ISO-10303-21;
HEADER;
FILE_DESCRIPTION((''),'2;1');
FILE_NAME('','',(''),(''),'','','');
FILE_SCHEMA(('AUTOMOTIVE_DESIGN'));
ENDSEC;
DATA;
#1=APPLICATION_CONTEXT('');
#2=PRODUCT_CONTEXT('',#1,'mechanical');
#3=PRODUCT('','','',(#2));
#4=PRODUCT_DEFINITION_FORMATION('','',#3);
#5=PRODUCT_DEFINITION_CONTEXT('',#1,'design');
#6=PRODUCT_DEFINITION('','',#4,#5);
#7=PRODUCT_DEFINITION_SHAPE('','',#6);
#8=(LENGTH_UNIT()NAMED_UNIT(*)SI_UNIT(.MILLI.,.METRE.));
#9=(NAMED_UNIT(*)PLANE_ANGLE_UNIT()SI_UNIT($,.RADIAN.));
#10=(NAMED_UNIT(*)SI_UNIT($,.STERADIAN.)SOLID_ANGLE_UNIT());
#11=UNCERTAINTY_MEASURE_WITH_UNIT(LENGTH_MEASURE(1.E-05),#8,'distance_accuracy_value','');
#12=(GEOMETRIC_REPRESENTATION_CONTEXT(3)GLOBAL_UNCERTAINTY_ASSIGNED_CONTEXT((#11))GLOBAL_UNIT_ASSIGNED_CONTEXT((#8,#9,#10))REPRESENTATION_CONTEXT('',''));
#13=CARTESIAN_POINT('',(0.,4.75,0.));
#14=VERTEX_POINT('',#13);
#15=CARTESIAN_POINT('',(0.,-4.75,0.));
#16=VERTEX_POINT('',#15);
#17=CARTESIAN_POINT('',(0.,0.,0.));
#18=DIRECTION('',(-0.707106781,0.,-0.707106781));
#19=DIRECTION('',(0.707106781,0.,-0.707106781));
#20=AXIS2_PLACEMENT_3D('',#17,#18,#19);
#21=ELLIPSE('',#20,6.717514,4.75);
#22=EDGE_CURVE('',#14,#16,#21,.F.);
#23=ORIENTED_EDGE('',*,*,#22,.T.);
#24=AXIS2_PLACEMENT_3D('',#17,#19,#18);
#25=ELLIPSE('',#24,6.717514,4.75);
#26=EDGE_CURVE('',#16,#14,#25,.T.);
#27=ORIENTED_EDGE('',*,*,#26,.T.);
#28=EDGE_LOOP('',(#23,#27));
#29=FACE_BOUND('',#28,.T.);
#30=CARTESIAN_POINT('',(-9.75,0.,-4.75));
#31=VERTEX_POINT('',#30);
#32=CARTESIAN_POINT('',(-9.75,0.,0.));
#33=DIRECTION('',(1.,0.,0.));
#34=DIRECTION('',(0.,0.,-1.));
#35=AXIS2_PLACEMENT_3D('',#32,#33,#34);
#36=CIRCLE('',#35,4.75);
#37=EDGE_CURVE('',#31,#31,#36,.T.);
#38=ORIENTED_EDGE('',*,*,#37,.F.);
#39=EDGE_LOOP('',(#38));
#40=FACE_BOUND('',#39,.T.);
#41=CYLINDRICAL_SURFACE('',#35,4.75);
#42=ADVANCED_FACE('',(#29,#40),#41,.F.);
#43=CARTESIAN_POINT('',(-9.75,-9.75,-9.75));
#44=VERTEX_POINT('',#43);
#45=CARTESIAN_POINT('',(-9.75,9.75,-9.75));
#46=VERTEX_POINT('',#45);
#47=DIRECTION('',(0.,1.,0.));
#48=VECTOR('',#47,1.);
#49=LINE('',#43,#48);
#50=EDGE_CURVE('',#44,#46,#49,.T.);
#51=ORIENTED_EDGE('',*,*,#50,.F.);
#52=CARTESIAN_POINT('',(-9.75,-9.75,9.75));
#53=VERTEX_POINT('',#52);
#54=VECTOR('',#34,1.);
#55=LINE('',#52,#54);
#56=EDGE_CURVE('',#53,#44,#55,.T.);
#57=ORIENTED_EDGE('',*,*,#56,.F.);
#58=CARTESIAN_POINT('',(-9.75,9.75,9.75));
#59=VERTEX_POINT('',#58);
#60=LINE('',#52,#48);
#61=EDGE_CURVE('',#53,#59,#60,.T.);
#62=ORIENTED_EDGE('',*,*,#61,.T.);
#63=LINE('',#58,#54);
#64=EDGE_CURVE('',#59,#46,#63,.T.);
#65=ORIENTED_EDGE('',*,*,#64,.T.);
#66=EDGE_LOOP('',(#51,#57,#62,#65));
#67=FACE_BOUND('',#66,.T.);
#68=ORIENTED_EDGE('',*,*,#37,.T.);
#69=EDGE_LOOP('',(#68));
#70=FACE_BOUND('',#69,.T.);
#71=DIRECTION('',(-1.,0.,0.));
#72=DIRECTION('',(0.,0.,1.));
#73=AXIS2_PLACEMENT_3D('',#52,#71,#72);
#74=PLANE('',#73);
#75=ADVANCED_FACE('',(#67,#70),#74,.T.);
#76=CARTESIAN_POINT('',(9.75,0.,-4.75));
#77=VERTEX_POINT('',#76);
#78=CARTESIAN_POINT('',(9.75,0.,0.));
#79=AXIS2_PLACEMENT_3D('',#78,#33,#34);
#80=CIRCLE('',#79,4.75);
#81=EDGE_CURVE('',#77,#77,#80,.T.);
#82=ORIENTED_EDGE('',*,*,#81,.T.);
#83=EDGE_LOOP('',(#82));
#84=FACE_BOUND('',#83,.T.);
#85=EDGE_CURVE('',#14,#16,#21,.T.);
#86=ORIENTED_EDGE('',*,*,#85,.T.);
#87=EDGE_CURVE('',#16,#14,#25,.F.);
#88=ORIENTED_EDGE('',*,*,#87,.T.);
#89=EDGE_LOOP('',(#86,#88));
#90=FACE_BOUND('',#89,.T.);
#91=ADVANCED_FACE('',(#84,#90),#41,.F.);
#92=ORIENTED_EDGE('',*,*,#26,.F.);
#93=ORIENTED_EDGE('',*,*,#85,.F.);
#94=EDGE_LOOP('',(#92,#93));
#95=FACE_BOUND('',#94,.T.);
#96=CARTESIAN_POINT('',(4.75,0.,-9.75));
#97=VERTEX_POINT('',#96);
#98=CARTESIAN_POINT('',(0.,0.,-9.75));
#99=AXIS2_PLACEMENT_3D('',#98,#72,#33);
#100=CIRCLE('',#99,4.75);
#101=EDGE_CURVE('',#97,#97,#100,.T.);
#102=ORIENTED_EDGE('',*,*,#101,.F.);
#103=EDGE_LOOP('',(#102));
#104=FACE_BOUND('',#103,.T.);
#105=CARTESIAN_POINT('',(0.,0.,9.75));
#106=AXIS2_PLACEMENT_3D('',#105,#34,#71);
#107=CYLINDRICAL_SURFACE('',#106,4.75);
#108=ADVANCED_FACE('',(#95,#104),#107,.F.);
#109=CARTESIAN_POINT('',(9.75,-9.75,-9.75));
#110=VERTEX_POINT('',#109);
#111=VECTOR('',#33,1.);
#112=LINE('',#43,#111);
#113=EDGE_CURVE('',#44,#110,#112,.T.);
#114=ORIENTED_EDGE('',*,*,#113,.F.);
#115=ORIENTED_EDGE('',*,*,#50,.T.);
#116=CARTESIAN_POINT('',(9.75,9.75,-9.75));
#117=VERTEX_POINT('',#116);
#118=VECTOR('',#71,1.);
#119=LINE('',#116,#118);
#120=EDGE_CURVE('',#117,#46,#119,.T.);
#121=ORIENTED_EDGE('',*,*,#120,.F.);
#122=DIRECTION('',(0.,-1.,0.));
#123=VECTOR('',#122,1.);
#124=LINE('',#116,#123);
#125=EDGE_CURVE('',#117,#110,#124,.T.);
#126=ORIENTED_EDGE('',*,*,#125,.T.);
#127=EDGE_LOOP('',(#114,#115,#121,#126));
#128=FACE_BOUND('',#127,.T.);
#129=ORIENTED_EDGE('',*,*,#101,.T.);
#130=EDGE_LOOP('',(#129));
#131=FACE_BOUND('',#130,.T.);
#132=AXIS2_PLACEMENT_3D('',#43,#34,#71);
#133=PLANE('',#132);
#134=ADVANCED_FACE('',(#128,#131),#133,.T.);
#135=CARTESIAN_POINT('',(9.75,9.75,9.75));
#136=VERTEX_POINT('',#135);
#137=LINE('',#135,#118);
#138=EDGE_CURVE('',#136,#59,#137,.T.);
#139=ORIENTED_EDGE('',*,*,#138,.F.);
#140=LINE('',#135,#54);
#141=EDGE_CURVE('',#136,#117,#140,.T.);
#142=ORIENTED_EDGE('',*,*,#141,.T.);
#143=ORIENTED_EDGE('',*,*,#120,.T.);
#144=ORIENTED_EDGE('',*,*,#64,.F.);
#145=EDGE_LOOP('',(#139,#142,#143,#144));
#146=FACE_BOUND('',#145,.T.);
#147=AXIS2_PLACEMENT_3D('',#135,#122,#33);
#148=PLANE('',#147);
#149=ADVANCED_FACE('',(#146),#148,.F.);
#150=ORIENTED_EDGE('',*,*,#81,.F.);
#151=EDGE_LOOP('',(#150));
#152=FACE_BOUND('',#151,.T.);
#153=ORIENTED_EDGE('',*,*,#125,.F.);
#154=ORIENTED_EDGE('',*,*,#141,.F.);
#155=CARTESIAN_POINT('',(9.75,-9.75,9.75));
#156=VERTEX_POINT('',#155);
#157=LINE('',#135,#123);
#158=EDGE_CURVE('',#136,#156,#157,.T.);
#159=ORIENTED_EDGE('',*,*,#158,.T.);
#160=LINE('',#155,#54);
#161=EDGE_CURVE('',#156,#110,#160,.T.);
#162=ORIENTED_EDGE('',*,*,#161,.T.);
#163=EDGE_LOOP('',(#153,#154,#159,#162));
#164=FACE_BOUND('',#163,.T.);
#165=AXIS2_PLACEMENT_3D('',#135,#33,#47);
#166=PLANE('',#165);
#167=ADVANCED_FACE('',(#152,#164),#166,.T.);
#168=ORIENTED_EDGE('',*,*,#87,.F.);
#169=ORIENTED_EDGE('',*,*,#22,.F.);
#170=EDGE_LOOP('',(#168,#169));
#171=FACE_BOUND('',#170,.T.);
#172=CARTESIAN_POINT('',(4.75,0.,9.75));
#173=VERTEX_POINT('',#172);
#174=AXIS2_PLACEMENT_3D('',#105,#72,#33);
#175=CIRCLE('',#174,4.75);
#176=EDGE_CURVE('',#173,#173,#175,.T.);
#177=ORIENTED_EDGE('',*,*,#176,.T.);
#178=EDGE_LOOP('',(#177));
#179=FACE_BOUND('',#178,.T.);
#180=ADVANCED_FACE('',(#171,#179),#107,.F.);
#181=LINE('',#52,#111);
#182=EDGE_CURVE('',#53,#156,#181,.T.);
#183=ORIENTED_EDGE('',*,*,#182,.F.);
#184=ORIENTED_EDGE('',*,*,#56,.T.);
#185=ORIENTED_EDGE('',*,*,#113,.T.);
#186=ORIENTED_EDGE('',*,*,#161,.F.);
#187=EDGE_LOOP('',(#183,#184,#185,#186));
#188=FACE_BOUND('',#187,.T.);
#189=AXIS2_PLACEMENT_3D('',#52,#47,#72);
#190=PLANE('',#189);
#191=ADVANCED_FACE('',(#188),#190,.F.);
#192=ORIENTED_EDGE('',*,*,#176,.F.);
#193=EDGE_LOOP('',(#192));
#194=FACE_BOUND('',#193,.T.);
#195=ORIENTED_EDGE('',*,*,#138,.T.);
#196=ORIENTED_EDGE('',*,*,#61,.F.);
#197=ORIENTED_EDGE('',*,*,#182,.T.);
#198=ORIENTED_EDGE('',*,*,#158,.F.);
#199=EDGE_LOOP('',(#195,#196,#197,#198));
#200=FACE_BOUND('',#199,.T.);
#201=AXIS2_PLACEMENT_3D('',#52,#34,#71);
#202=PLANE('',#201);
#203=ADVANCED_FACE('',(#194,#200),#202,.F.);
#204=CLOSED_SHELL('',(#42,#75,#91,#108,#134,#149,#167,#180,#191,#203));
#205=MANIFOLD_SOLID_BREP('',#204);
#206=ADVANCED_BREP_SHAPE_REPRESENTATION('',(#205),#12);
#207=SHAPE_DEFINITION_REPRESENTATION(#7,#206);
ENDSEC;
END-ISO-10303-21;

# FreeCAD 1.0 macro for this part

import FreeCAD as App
import Part
import Sketcher

V = App.Vector


def add_polygon(sketch, points):
    """Adds a closed chain of lines whose ends are joined by coincident constraints."""
    first, n = sketch.GeometryCount, len(points)
    for a, b in zip(points, points[1:] + points[:1]):
        sketch.addGeometry(Part.LineSegment(App.Vector(*a, 0), App.Vector(*b, 0)), False)
    for i in range(n):
        sketch.addConstraint(Sketcher.Constraint("Coincident", first + i, 2, first + (i + 1) % n, 1))

doc = App.newDocument("Part")
body = doc.addObject("PartDesign::Body", "Body")

sketch1 = doc.addObject("Sketcher::SketchObject", "Sketch")
body.addObject(sketch1)
sketch1.AttachmentSupport = (doc.XY_Plane, [""])
sketch1.MapMode = "FlatFace"
add_polygon(sketch1, [(-9.8, 9.8), (-9.8, -9.8), (9.8, -9.8), (9.8, 9.8)])
sketch1.addGeometry(Part.Circle(V(0, 0, 0), V(0, 0, 1), 4.8), False)
sketch1.addConstraint([
    Sketcher.Constraint("Vertical", 0),
    Sketcher.Constraint("Horizontal", 1),
    Sketcher.Constraint("Vertical", 2),
    Sketcher.Constraint("Horizontal", 3),
    Sketcher.Constraint("Coincident", 4, 3, -1, 1),
    Sketcher.Constraint("Symmetric", 0, 2, 2, 2, -1, 1),
    Sketcher.Constraint("Equal", 3, 0),
    Sketcher.Constraint("Diameter", 4, 9.5),
    Sketcher.Constraint("DistanceX", 1, 1, 1, 2, 19.5),
])
pad1 = doc.addObject("PartDesign::Pad", "Pad")
body.addObject(pad1)
pad1.Profile = sketch1
pad1.Length = 19.5
pad1.Midplane = True

sketch2 = doc.addObject("Sketcher::SketchObject", "Sketch001")
body.addObject(sketch2)
sketch2.AttachmentSupport = (doc.YZ_Plane, [""])
sketch2.MapMode = "FlatFace"
sketch2.AttachmentOffset = App.Placement(V(0, 0, 9.75), App.Rotation())
sketch2.addGeometry(Part.Circle(V(0, 0, 0), V(0, 0, 1), 4.8), False)
sketch2.addConstraint([
    Sketcher.Constraint("Coincident", 0, 3, -1, 1),
    Sketcher.Constraint("Diameter", 0, 9.5),
])
pocket1 = doc.addObject("PartDesign::Pocket", "Pocket")
body.addObject(pocket1)
pocket1.Profile = sketch2
pocket1.Type = "ThroughAll"

doc.recompute()
